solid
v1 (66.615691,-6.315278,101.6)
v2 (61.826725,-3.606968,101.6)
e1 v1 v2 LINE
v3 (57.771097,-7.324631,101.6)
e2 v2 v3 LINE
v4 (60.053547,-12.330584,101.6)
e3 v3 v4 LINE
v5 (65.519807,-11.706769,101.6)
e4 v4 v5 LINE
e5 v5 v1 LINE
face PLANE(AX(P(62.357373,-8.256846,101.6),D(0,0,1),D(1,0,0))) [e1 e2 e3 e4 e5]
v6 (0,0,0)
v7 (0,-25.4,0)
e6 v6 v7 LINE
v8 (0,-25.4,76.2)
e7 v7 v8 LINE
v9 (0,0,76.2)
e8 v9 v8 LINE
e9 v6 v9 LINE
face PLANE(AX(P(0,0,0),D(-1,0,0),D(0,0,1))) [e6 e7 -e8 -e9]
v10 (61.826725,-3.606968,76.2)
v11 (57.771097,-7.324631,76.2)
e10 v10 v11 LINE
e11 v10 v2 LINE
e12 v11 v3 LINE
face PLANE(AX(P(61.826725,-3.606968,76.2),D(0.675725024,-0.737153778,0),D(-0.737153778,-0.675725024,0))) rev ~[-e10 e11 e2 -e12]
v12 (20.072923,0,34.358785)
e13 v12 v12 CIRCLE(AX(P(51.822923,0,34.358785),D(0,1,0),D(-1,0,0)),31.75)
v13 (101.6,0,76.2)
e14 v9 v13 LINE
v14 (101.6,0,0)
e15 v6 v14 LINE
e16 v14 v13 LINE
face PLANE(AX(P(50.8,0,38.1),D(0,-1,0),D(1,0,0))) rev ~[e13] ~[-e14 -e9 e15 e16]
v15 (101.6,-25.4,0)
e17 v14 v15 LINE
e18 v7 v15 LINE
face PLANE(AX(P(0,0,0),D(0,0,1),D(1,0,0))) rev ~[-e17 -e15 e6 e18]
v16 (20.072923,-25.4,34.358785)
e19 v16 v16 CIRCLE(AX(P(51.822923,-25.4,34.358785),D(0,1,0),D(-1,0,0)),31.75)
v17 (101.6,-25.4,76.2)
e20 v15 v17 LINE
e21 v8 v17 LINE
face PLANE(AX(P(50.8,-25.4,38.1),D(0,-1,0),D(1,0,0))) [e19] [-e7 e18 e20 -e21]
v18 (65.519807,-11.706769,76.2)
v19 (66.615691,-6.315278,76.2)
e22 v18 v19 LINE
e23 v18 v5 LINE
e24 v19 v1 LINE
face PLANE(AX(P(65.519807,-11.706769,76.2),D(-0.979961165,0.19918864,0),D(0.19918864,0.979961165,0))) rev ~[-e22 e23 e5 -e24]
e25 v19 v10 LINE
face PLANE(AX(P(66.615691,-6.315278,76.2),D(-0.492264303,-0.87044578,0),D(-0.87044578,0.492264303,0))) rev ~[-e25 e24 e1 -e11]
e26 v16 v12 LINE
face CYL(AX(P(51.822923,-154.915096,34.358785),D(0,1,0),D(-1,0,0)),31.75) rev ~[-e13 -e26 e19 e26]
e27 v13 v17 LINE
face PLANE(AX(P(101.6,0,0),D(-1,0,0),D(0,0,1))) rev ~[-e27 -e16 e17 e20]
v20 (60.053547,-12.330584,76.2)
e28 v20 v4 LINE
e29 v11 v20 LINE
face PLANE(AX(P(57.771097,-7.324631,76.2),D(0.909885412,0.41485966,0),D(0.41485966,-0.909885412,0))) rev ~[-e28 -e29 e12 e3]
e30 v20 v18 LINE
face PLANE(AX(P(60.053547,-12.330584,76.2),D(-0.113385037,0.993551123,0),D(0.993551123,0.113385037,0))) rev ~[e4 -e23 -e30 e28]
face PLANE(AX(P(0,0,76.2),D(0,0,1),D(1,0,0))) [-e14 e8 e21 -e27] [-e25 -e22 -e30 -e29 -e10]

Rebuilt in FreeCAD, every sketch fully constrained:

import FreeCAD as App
import Part
import Sketcher

V = App.Vector
Q = App.Units.Quantity


def add_polygon(sketch, points):
    """Adds a closed chain of lines whose ends are joined by coincident constraints."""
    first, n = sketch.GeometryCount, len(points)
    for a, b in zip(points, points[1:] + points[:1]):
        sketch.addGeometry(Part.LineSegment(App.Vector(*a, 0), App.Vector(*b, 0)), False)
    for i in range(n):
        sketch.addConstraint(Sketcher.Constraint("Coincident", first + i, 2, first + (i + 1) % n, 1))

doc = App.newDocument("Part")
body = doc.addObject("PartDesign::Body", "Body")

sketch1 = body.newObject("Sketcher::SketchObject", "Sketch")
sketch1.AttachmentSupport = (doc.getObject("XZ_Plane"), [""])
sketch1.MapMode = "FlatFace"
add_polygon(sketch1, [(0, 76), (0, 0), (102, 0), (102, 76)])
sketch1.addConstraint([
    Sketcher.Constraint("Vertical", 0),
    Sketcher.Constraint("Horizontal", 1),
    Sketcher.Constraint("Vertical", 2),
    Sketcher.Constraint("Horizontal", 3),
    Sketcher.Constraint("Coincident", 0, 2, -1, 1),
    Sketcher.Constraint("DistanceX", 1, 1, 1, 2, Q("4 in")),
    Sketcher.Constraint("DistanceY", 0, 2, 0, 1, Q("3 in")),
])
pad1 = body.newObject("PartDesign::Pad", "Pad")
pad1.Profile = sketch1
pad1.Length = Q("1 in")

sketch2 = body.newObject("Sketcher::SketchObject", "Sketch001")
sketch2.AttachmentSupport = (doc.getObject("XZ_Plane"), [""])
sketch2.MapMode = "FlatFace"
sketch2.AttachmentOffset = App.Placement(V(0, 0, 1 * 25.4), App.Rotation())
sketch2.addGeometry(Part.Circle(V(52, 34, 0), V(0, 0, 1), 32), False)
sketch2.addConstraint([
    Sketcher.Constraint("Diameter", 0, Q("2.5 in")),
    Sketcher.Constraint("DistanceX", -1, 1, 0, 3, 51.822923),
    Sketcher.Constraint("DistanceY", -1, 1, 0, 3, 34.358785),
])
doc.recompute()
hole = body.newObject("PartDesign::Hole", "Hole")
hole.Profile = sketch2
hole.ThreadType = "None"
hole.Diameter = Q("2.5 in")
hole.DepthType = "ThroughAll"

sketch3 = body.newObject("Sketcher::SketchObject", "Sketch002")
sketch3.AttachmentSupport = (doc.getObject("XY_Plane"), [""])
sketch3.MapMode = "FlatFace"
sketch3.AttachmentOffset = App.Placement(V(0, 0, 3 * 25.4), App.Rotation())
add_polygon(sketch3, [(62, -4), (58, -7), (60, -12), (66, -12), (67, -6)])
sketch3.addConstraint([
    Sketcher.Constraint("Equal", 0, 1),
    Sketcher.Constraint("Equal", 1, 2),
    Sketcher.Constraint("Equal", 2, 3),
    Sketcher.Constraint("Equal", 3, 4),
    Sketcher.Constraint("DistanceY", 2, 2, 4, 2, 8.099801),
    Sketcher.Constraint("Distance", 0, 5.501739),
    Sketcher.Constraint("DistanceY", 0, 2, -1, 1, 7.324631),
    Sketcher.Constraint("DistanceY", 2, 2, -1, 1, 11.706769),
    Sketcher.Constraint("DistanceX", -1, 1, 3, 2, 66.615691),
    Sketcher.Constraint("DistanceY", 3, 2, -1, 1, 6.315278),
])
pad2 = body.newObject("PartDesign::Pad", "Pad001")
pad2.Profile = sketch3
pad2.Length = Q("1 in")

doc.recompute()
